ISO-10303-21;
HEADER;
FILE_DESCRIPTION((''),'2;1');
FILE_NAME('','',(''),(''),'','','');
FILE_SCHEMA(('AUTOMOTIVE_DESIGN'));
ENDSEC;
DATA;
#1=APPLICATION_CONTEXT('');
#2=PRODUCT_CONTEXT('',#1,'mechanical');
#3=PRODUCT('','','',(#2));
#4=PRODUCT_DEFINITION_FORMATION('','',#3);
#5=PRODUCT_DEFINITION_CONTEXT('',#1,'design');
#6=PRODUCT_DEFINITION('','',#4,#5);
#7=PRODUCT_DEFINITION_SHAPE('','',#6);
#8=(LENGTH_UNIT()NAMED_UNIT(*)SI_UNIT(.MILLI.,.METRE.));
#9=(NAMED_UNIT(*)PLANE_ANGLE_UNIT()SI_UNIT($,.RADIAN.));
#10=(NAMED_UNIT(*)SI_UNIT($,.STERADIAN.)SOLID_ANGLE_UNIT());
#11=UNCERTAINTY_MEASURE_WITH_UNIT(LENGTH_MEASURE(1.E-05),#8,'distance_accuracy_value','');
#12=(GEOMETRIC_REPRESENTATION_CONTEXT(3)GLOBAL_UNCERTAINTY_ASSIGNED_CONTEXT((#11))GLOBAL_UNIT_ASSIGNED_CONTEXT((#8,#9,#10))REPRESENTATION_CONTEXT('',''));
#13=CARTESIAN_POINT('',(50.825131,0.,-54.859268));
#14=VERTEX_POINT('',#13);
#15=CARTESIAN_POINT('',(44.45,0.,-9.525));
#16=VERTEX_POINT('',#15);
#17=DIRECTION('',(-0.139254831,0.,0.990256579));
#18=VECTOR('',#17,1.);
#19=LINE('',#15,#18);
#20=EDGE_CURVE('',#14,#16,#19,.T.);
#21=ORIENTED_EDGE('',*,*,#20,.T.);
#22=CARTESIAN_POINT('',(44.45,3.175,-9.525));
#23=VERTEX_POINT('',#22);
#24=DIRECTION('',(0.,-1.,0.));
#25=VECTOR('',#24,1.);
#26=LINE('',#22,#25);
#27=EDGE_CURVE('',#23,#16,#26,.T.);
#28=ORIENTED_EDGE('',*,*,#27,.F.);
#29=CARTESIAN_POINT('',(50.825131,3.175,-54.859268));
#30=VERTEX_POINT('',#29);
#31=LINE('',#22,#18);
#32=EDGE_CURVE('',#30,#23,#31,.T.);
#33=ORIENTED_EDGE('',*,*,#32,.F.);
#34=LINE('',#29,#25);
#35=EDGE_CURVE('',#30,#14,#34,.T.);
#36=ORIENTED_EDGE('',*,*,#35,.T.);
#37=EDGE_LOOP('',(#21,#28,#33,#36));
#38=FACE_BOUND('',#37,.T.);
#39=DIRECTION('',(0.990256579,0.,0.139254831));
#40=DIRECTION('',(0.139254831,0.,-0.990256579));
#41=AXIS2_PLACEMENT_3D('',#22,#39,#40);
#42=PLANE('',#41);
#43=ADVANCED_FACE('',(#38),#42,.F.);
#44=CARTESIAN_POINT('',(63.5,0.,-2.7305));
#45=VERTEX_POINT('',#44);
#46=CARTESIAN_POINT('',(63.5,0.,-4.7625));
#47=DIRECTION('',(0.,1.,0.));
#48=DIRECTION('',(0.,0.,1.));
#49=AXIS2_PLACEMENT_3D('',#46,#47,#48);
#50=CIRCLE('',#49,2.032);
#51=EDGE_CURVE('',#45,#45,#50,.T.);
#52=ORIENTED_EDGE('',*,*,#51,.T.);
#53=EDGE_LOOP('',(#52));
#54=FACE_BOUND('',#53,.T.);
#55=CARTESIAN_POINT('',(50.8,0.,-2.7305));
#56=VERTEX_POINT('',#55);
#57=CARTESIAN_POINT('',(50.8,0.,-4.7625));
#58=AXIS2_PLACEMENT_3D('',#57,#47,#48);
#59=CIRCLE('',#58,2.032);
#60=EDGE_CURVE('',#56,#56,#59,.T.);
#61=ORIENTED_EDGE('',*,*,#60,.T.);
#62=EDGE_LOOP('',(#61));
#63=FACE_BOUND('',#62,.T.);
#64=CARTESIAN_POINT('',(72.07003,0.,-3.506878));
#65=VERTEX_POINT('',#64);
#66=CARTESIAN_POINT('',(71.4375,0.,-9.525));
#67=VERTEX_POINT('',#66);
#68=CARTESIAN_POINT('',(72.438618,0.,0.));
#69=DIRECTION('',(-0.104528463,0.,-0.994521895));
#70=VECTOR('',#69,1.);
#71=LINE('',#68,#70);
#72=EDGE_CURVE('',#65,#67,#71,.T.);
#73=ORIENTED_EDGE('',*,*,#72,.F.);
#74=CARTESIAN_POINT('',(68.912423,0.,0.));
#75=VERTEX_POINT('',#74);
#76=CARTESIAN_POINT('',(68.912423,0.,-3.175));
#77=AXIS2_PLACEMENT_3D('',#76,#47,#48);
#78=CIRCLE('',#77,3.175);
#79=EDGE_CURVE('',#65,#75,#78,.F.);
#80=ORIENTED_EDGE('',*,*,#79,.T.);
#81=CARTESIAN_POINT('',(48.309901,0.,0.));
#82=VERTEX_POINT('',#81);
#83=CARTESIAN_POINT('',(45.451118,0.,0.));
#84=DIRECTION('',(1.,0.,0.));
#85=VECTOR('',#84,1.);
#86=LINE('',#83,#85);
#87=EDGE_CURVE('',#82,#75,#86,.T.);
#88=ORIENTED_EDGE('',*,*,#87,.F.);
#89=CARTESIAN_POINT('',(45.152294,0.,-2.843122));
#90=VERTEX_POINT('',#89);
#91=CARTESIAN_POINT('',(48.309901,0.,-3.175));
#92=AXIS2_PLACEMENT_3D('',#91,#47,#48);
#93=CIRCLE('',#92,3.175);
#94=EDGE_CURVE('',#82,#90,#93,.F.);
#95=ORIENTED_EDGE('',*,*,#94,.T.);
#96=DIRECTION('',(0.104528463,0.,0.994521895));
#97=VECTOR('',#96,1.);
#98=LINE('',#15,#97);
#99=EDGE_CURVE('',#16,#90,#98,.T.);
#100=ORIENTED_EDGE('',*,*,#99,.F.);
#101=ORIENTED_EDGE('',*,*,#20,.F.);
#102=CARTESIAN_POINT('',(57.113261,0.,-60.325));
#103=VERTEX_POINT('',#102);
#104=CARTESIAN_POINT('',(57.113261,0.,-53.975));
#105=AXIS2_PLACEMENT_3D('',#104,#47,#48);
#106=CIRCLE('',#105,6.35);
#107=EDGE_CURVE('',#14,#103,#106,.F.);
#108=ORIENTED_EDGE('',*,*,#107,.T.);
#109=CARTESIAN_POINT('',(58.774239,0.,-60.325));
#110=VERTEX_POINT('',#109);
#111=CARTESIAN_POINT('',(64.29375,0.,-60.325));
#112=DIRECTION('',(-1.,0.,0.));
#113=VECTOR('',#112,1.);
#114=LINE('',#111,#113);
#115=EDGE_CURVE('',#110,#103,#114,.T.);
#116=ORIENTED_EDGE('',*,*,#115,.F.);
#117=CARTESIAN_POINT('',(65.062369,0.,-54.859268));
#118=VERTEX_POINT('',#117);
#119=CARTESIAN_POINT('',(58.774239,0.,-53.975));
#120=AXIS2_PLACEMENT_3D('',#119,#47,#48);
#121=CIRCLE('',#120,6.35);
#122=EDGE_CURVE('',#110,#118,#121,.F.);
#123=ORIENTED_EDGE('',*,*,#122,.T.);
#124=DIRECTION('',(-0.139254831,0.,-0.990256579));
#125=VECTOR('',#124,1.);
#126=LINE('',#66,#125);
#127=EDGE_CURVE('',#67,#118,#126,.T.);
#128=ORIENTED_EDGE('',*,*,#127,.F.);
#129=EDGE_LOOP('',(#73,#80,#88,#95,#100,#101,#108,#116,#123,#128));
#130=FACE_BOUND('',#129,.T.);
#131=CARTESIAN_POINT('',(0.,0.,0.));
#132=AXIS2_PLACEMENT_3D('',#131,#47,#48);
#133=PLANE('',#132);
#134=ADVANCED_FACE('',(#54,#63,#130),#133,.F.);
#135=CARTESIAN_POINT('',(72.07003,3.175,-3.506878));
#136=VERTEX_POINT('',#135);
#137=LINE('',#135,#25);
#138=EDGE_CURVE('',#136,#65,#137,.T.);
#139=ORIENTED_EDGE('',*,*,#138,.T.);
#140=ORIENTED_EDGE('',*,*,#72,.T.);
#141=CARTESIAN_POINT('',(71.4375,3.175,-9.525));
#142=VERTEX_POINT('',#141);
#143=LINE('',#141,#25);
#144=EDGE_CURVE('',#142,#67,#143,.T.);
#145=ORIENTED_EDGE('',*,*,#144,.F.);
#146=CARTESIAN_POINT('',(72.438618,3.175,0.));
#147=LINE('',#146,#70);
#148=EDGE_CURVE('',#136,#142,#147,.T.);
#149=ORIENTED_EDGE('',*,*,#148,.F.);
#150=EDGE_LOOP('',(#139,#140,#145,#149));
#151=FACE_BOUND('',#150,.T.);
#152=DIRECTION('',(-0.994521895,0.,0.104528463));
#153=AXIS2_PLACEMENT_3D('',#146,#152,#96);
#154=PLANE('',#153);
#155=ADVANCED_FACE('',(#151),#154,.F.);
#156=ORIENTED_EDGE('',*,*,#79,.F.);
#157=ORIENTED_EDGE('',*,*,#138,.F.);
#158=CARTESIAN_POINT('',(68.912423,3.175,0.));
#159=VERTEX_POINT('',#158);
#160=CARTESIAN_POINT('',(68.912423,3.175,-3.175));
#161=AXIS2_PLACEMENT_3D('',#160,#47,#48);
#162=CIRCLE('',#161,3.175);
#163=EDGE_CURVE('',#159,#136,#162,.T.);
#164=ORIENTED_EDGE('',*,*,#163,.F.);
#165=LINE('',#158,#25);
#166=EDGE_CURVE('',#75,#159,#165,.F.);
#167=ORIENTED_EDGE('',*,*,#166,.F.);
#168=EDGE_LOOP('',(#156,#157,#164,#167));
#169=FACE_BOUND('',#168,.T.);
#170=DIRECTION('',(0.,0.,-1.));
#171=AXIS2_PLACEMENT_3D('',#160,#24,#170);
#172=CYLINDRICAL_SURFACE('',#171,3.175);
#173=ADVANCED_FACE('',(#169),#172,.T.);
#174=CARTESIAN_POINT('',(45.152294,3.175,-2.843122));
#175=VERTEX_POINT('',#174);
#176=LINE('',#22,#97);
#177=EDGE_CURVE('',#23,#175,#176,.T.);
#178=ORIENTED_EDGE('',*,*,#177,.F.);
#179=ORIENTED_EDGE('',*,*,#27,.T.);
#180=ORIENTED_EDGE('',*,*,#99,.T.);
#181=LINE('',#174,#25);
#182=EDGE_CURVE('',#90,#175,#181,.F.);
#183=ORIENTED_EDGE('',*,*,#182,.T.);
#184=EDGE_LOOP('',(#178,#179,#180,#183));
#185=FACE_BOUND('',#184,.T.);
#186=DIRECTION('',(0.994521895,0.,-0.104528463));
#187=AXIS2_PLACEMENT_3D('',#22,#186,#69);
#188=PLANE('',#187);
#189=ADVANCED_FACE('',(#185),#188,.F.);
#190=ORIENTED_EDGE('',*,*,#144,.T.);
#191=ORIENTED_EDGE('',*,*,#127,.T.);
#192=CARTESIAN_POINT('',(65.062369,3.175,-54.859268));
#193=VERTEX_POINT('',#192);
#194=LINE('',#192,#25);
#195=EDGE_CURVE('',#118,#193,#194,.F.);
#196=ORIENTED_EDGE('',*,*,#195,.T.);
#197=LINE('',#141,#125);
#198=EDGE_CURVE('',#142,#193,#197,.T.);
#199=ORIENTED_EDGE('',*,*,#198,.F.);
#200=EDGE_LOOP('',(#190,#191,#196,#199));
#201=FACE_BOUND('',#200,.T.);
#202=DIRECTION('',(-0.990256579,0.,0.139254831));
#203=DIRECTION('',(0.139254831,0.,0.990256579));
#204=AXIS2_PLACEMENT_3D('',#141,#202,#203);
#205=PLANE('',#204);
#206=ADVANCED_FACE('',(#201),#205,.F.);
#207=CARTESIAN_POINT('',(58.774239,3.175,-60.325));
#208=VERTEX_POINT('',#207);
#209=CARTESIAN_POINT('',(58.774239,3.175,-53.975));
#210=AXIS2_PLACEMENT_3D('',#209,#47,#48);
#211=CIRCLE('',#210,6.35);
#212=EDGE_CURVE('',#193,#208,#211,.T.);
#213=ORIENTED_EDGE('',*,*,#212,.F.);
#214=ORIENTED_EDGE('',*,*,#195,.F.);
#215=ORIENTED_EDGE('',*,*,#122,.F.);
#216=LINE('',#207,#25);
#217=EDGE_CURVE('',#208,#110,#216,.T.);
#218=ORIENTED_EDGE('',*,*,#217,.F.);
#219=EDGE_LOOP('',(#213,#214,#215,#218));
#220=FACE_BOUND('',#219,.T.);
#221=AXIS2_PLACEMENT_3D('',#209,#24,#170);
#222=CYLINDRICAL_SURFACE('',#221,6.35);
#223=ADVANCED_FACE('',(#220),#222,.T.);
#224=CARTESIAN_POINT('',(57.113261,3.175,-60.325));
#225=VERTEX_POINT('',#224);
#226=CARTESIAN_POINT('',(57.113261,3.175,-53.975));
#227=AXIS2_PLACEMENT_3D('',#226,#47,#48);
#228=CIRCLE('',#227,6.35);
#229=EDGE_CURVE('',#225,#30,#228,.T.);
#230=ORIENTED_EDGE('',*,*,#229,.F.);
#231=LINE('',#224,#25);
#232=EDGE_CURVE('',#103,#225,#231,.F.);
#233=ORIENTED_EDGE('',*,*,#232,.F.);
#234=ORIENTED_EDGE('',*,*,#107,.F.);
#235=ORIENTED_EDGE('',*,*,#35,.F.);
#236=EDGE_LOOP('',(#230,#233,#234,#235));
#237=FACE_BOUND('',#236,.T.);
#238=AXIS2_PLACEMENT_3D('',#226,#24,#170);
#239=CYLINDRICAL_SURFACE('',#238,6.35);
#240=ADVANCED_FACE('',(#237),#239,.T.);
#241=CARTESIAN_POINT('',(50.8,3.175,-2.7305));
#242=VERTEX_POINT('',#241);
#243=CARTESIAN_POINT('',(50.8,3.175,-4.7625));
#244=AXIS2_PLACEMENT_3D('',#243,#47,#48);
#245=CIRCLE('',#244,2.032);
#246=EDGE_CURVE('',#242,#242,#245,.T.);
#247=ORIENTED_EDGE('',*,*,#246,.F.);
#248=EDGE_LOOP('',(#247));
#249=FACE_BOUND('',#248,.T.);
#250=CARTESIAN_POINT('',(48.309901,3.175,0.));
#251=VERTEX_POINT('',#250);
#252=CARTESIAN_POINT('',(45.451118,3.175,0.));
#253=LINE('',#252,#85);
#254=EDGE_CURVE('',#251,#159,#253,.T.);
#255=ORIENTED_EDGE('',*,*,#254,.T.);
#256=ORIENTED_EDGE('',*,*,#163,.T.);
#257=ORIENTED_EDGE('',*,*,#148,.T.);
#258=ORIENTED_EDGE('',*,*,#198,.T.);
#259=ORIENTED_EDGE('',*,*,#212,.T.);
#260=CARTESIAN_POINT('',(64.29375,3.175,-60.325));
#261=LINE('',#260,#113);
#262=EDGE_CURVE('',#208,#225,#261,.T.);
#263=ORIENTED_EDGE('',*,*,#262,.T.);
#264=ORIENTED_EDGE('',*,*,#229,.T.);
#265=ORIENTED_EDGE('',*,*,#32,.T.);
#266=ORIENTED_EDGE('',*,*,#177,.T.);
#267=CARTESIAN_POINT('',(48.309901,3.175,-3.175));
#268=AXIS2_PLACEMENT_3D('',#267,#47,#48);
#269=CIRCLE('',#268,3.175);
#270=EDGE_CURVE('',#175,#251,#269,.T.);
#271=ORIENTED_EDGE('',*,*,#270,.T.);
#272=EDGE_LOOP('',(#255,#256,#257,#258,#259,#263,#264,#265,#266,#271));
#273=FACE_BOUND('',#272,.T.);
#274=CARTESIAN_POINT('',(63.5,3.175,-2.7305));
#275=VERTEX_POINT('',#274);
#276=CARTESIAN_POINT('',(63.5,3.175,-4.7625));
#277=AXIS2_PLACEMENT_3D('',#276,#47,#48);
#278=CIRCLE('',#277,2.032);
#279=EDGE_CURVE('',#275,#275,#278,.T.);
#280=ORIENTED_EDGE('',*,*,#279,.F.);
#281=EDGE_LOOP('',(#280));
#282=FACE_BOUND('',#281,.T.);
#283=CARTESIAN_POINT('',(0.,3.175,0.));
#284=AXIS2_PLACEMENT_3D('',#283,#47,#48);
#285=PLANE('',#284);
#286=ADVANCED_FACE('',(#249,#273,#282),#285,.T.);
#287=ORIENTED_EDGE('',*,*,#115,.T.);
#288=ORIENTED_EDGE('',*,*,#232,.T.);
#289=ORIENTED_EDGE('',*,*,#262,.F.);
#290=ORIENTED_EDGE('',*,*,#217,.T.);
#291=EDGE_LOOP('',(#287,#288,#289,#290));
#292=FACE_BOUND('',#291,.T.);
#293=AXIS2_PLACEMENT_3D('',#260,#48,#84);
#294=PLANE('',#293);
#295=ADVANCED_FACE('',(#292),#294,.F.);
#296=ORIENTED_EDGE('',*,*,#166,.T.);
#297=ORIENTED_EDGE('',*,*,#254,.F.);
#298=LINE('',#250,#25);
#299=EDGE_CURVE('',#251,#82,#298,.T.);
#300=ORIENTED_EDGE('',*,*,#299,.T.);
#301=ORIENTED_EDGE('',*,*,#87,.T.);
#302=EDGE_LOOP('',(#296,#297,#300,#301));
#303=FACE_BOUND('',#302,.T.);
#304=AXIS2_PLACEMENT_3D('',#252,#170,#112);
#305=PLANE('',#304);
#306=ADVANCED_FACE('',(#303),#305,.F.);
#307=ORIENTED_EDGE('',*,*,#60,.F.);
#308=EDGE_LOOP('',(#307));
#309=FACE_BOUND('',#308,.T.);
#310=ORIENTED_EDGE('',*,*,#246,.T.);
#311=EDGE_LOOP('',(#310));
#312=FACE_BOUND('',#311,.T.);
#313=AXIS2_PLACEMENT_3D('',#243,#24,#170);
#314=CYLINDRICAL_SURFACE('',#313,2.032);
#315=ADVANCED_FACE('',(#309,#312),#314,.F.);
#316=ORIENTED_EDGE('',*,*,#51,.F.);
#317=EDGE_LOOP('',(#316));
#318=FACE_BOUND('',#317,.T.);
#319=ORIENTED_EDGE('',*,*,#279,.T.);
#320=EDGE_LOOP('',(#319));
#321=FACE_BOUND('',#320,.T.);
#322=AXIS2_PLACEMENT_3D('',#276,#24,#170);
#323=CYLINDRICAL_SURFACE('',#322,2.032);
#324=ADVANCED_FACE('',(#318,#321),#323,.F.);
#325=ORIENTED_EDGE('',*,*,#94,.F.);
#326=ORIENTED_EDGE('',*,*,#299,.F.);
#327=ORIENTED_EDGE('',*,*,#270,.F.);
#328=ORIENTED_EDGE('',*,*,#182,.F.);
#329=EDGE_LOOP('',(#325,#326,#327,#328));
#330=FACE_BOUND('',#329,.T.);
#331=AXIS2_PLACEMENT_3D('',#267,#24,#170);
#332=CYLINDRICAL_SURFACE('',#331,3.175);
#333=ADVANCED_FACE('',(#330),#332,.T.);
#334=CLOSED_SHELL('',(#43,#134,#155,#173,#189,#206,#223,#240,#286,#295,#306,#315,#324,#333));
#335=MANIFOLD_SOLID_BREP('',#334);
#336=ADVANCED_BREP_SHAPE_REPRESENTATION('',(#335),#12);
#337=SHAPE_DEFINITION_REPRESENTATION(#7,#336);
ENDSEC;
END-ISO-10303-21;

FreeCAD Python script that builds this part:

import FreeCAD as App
import Part
import Sketcher
Q = App.Units.Quantity


def edges_at(feature, points):
    """Names of the edges that pass closest to the given points."""
    edges = feature.Shape.Edges
    near = lambda p: min(range(len(edges)), key=lambda i: edges[i].distToShape(Part.Vertex(*p))[0])
    return sorted({f"Edge{near(p) + 1}" for p in points})


def add_polygon(sketch, points):
    """Adds a closed chain of lines whose ends are joined by coincident constraints."""
    first, n = sketch.GeometryCount, len(points)
    for a, b in zip(points, points[1:] + points[:1]):
        sketch.addGeometry(Part.LineSegment(App.Vector(*a, 0), App.Vector(*b, 0)), False)
    for i in range(n):
        sketch.addConstraint(Sketcher.Constraint("Coincident", first + i, 2, first + (i + 1) % n, 1))

doc = App.newDocument("Part")
body = doc.addObject("PartDesign::Body", "Body")

# Sketch on XZ plane
sketch1 = body.newObject("Sketcher::SketchObject", "Sketch")
sketch1.AttachmentSupport = (doc.getObject("XZ_Plane"), [""])
sketch1.MapMode = "FlatFace"
add_polygon(sketch1, [(44.5, -9.5), (45.5, 0), (72.4, 0), (71.4, -9.5), (64.3, -60.3), (51.6, -60.3)])  # lines 0-5
sketch1.addGeometry(Part.Circle(App.Vector(50.8, -4.8, 0), App.Vector(0, 0, 1), 2), False)  # 6
sketch1.addGeometry(Part.Circle(App.Vector(63.5, -4.8, 0), App.Vector(0, 0, 1), 2), False)  # 7
sketch1.addConstraint(Sketcher.Constraint("Horizontal", 1))
sketch1.addConstraint(Sketcher.Constraint("Horizontal", 4))
sketch1.addConstraint(Sketcher.Constraint("Equal", 6, 7))
sketch1.addConstraint(Sketcher.Constraint("PointOnObject", 0, 2, -1))
sketch1.addConstraint(Sketcher.Constraint("Parallel", 0, 2))
sketch1.addConstraint(Sketcher.Constraint("Horizontal", 6, 3, 7, 3))
sketch1.addConstraint(Sketcher.Constraint("Horizontal", 2, 2, 5, 2))
sketch1.addConstraint(Sketcher.Constraint("Equal", 3, 5))
sketch1.addConstraint(Sketcher.Constraint("Diameter", 6, Q("0.16 in")))
sketch1.addConstraint(Sketcher.Constraint("DistanceX", 4, 2, 4, 1, Q("0.5 in")))
sketch1.addConstraint(Sketcher.Constraint("DistanceX", -1, 1, 6, 3, Q("2 in")))
sketch1.addConstraint(Sketcher.Constraint("Angle", 0, Q("84 deg")))
sketch1.addConstraint(Sketcher.Constraint("DistanceY", 3, 2, 2, 2, Q("2 in")))
sketch1.addConstraint(Sketcher.Constraint("DistanceX", -1, 1, 7, 3, Q("2.5 in")))
sketch1.addConstraint(Sketcher.Constraint("DistanceX", 1, 1, 1, 2, Q("1.0625 in")))
sketch1.addConstraint(Sketcher.Constraint("DistanceX", -1, 1, 5, 2, Q("1.75 in")))
sketch1.addConstraint(Sketcher.Constraint("DistanceY", 6, 3, -1, 1, Q("0.1875 in")))
sketch1.addConstraint(Sketcher.Constraint("DistanceY", 2, 2, -1, 1, Q("0.375 in")))
pad1 = body.newObject("PartDesign::Pad", "Pad")
pad1.Profile = sketch1
pad1.Length = Q("0.125 in")
pad1.Reversed = True
doc.recompute()

fillet = body.newObject("PartDesign::Fillet", "Fillet")
fillet.Base = (pad1, edges_at(pad1, [(51.594, 1.587, -60.325), (64.294, 1.587, -60.325)]))
fillet.Radius = Q("0.25 in")
doc.recompute()

fillet2 = body.newObject("PartDesign::Fillet", "Fillet001")
fillet2.Base = (fillet, edges_at(fillet, [(72.439, 1.587, 0), (45.451, 1.587, 0)]))
fillet2.Radius = Q("0.125 in")

doc.recompute()
